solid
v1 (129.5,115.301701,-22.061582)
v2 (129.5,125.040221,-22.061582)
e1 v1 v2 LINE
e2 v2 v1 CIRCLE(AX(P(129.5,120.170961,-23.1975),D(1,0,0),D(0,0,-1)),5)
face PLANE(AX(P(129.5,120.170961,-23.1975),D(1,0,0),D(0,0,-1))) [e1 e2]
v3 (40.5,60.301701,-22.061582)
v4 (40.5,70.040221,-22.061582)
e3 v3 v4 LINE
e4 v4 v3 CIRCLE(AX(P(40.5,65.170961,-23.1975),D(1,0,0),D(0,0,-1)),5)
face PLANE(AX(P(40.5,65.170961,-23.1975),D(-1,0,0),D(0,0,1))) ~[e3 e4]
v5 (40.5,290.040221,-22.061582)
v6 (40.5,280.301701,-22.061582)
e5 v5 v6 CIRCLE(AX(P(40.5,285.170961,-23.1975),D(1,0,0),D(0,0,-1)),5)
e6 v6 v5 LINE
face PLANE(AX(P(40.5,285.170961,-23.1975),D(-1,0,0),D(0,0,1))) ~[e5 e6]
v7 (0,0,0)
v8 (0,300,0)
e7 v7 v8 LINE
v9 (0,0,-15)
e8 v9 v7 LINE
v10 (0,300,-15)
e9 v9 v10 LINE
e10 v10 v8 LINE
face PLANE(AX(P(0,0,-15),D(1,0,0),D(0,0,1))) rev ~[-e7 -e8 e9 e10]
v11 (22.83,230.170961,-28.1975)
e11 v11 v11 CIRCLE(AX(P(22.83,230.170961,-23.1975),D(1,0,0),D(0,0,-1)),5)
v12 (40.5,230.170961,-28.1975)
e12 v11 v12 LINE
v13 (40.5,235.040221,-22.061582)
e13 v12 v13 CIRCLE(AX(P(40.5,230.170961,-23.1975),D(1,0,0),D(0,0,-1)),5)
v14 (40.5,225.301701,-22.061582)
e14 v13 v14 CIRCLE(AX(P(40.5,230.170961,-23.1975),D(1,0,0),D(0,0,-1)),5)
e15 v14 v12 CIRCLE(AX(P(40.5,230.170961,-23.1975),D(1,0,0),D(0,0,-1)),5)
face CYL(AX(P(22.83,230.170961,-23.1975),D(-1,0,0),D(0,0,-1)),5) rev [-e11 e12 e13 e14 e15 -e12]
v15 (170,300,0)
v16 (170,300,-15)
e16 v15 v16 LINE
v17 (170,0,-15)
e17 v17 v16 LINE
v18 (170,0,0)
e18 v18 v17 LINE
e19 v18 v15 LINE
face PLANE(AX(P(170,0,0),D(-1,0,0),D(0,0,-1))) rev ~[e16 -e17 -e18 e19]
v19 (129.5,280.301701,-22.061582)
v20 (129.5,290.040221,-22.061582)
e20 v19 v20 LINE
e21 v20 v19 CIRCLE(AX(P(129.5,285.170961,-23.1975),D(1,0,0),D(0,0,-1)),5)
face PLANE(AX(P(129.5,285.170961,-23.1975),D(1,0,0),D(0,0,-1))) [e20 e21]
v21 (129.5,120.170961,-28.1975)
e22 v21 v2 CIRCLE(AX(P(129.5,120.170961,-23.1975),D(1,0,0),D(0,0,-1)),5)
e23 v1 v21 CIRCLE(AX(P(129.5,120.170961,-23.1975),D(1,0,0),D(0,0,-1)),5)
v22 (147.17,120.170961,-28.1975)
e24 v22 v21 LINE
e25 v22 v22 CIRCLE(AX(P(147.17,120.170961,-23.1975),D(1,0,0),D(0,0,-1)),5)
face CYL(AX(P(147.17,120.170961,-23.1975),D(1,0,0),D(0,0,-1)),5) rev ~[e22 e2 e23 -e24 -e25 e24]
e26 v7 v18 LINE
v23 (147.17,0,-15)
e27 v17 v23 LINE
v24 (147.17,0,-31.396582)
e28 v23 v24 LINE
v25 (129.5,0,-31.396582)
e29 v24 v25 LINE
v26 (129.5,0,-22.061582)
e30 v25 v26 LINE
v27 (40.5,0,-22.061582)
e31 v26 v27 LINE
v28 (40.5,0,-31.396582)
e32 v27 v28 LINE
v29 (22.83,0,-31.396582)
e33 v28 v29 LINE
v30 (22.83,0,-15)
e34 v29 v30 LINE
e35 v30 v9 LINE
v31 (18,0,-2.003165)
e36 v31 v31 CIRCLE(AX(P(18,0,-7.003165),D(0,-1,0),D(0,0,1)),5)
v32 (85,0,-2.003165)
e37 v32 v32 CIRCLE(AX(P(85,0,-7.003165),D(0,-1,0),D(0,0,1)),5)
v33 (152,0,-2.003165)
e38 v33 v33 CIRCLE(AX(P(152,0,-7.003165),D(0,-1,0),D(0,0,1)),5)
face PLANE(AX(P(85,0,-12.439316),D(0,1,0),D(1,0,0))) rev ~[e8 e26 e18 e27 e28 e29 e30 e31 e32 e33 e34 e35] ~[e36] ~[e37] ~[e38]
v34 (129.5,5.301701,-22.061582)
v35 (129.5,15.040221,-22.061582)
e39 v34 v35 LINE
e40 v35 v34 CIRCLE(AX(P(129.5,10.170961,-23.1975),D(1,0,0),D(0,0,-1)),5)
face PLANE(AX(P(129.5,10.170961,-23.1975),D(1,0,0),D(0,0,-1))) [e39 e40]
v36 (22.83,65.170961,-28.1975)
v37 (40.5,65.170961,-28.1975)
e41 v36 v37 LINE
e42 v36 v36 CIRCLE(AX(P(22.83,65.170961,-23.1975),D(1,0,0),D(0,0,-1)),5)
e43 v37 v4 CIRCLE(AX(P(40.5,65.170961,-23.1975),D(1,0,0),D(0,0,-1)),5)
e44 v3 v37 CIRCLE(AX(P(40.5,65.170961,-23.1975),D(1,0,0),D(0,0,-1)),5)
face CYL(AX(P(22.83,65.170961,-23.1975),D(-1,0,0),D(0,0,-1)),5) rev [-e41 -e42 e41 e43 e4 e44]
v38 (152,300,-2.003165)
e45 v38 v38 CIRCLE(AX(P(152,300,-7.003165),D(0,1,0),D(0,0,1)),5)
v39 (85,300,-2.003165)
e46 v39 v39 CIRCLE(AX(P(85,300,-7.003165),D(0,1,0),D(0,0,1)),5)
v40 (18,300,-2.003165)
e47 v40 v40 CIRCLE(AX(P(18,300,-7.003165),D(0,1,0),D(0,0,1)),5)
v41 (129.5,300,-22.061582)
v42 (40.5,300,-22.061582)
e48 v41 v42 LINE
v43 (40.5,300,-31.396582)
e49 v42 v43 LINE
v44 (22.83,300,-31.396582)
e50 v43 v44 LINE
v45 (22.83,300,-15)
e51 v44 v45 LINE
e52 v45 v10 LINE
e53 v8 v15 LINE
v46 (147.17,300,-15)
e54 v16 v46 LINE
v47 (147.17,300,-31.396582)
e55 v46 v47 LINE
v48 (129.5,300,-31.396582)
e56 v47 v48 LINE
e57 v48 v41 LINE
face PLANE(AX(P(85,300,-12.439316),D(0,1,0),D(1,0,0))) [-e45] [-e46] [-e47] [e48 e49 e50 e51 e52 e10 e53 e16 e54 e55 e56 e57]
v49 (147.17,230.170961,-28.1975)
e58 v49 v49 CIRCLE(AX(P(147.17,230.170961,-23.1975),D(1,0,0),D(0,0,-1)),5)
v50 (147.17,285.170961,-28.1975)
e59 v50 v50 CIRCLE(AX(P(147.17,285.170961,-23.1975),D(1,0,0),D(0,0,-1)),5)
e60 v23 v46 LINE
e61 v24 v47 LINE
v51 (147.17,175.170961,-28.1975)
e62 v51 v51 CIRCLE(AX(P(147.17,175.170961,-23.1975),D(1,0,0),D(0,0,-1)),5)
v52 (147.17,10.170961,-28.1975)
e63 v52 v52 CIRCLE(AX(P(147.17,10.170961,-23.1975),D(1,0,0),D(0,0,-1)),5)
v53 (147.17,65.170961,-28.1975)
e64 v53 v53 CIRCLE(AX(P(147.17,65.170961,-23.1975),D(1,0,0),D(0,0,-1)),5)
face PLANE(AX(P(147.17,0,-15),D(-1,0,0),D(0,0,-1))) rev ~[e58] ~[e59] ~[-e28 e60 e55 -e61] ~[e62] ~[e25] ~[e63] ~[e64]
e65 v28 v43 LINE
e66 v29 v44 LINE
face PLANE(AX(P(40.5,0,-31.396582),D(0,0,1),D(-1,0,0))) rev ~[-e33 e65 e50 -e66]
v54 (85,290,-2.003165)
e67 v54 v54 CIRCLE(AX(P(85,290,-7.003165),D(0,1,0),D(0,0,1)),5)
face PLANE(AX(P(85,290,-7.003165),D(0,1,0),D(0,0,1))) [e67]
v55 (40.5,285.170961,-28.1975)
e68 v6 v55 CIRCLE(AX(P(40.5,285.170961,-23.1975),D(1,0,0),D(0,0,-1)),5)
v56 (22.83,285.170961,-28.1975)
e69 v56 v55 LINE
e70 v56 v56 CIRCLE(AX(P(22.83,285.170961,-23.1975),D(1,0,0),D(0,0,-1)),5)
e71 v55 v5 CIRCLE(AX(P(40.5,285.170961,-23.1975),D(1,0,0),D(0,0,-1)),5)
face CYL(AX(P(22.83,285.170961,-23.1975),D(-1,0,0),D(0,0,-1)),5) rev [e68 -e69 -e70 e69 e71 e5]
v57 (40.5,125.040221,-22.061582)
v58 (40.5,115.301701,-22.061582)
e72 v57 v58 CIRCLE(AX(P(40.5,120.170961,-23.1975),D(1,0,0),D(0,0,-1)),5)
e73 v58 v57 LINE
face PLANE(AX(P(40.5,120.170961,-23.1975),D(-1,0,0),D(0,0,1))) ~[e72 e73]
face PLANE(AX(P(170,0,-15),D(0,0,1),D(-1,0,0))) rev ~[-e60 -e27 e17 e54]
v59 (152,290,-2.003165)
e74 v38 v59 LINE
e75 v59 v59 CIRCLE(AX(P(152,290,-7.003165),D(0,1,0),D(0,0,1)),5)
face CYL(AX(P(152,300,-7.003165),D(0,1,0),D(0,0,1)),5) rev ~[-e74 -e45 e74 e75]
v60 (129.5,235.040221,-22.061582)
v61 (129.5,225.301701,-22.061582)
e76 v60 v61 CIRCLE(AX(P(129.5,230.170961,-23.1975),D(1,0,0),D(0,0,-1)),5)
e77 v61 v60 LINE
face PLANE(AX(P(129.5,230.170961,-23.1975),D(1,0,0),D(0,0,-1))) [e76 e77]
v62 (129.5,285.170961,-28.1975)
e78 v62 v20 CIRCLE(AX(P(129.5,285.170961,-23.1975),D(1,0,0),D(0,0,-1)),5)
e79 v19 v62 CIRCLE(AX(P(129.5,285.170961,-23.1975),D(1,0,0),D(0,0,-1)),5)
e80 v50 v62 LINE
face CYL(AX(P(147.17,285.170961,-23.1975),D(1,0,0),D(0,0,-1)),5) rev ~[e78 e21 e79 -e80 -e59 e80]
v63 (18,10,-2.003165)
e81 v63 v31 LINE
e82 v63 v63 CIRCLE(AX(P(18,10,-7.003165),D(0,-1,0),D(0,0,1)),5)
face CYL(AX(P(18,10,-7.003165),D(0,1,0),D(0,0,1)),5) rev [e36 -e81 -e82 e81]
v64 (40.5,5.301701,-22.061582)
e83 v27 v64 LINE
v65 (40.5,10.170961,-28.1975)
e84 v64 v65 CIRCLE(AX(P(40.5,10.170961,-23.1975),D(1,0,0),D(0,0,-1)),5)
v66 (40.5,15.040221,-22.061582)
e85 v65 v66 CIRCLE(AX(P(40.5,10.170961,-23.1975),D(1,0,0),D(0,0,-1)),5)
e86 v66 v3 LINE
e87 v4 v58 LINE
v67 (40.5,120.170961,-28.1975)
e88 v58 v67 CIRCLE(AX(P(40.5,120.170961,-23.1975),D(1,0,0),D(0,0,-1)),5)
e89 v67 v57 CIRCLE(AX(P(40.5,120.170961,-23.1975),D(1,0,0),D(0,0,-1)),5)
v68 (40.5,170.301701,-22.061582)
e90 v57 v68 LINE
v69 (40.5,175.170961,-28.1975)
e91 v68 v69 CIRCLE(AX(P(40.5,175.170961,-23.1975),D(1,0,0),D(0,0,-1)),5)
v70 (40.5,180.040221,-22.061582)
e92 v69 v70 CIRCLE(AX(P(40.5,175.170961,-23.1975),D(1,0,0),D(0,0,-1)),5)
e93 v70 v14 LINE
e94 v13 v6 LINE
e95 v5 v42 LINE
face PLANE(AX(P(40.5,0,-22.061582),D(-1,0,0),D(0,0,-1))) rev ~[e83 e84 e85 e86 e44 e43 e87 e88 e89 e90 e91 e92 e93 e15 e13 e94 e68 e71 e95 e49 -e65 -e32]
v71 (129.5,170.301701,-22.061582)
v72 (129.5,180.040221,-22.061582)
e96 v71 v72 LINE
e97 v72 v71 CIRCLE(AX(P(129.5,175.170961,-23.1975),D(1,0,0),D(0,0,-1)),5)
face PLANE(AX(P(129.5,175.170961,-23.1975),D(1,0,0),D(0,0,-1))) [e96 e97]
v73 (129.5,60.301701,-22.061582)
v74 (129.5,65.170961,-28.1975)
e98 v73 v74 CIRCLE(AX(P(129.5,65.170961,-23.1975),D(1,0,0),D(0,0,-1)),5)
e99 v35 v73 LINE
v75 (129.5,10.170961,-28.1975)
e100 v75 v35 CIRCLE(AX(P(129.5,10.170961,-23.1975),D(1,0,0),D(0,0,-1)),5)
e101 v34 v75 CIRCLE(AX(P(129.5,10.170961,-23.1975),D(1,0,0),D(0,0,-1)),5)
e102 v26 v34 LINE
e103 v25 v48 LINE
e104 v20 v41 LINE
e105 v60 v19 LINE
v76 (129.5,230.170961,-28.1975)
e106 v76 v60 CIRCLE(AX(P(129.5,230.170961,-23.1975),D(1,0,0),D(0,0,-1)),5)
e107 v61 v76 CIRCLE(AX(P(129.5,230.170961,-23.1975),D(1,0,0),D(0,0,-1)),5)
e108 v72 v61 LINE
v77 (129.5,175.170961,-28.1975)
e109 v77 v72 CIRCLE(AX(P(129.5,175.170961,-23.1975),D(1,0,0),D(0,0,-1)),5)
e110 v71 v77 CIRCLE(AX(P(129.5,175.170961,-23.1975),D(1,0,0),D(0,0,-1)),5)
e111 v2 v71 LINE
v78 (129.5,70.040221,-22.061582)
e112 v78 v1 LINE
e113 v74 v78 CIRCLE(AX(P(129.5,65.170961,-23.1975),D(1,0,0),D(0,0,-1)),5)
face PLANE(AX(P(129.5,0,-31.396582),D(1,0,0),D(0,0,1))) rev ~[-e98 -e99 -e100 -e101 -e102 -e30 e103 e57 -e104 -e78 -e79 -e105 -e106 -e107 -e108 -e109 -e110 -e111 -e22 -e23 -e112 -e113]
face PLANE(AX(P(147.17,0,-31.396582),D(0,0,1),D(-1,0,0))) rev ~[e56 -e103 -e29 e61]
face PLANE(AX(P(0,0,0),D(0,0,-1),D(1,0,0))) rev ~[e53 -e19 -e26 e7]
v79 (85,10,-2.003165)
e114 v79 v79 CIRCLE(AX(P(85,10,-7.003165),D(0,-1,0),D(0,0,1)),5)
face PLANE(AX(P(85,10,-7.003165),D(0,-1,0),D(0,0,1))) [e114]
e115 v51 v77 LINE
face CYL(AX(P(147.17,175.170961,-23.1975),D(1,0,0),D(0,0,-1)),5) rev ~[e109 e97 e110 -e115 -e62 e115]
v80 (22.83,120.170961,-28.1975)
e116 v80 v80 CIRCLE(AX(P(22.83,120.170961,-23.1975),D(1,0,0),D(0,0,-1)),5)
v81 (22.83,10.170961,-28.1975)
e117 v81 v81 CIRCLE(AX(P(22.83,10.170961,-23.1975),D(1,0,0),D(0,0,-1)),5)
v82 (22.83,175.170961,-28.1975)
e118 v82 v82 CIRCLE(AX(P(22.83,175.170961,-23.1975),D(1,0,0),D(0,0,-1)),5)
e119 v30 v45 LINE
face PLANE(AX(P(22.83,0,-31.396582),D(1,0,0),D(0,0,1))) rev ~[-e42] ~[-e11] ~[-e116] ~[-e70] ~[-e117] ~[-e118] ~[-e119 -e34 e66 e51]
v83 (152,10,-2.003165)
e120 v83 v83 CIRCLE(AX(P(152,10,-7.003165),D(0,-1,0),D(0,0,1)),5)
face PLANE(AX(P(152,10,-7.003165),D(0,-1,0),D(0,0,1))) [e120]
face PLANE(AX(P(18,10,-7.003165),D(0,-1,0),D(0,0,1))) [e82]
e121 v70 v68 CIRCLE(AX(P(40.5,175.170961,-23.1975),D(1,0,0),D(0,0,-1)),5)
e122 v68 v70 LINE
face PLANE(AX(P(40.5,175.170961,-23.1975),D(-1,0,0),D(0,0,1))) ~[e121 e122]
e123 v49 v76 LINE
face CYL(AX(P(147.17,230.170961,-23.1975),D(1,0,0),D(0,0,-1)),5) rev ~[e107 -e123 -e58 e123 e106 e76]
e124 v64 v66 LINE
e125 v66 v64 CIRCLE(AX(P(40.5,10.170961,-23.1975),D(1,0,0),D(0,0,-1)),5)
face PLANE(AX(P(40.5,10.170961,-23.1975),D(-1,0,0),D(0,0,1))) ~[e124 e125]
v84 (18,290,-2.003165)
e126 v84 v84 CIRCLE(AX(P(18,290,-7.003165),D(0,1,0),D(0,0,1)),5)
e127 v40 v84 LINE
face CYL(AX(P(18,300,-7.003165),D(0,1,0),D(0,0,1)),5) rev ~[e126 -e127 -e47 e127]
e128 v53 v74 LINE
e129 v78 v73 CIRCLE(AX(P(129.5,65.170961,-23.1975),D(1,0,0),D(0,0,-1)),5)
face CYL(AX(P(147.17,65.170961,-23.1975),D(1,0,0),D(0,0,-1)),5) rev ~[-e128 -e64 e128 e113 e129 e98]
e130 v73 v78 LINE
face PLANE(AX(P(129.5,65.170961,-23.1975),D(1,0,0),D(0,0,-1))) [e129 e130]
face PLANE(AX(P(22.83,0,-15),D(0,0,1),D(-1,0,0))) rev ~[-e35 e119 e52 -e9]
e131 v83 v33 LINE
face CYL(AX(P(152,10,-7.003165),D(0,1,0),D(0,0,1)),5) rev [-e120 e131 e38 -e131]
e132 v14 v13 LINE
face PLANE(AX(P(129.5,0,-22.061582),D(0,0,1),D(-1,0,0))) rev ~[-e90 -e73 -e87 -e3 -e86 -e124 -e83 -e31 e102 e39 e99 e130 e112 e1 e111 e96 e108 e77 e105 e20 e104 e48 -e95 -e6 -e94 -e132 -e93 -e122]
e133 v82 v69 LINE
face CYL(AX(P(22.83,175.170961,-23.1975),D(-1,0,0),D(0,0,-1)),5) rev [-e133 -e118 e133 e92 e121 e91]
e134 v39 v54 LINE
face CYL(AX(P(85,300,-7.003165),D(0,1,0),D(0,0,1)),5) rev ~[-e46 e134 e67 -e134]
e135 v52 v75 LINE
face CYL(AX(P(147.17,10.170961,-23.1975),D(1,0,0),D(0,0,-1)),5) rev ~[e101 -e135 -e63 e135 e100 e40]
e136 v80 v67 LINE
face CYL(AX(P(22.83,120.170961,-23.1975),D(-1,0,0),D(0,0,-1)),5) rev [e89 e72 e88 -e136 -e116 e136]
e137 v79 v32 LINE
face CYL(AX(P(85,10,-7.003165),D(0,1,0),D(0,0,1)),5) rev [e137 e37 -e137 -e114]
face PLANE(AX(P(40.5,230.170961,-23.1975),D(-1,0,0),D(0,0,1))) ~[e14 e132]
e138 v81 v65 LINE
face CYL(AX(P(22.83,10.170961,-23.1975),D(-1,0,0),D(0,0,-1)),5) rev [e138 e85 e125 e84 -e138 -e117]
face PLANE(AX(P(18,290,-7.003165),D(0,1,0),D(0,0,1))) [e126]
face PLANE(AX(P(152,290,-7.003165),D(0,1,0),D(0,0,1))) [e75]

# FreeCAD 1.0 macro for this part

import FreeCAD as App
import Part
import Sketcher

doc = App.newDocument("Part")
body = doc.addObject("PartDesign::Body", "Body")

# Sketch on XZ plane
sketch1 = body.newObject("Sketcher::SketchObject", "Sketch")
sketch1.AttachmentSupport = (doc.getObject("XZ_Plane"), [""])
sketch1.MapMode = "FlatFace"
sketch1.addGeometry([
    Part.LineSegment(App.Vector(0, 0, 0), App.Vector(170, 0, 0)),  # 0
    Part.LineSegment(App.Vector(170, 0, 0), App.Vector(170, -15, 0)),  # 1
    Part.LineSegment(App.Vector(170, -15, 0), App.Vector(147, -15, 0)),  # 2
    Part.LineSegment(App.Vector(147, -15, 0), App.Vector(147, -31, 0)),  # 3
    Part.LineSegment(App.Vector(147, -31, 0), App.Vector(130, -31, 0)),  # 4
    Part.LineSegment(App.Vector(130, -31, 0), App.Vector(130, -22, 0)),  # 5
    Part.LineSegment(App.Vector(130, -22, 0), App.Vector(40, -22, 0)),  # 6
    Part.LineSegment(App.Vector(40, -22, 0), App.Vector(40, -31, 0)),  # 7
    Part.LineSegment(App.Vector(40, -31, 0), App.Vector(23, -31, 0)),  # 8
    Part.LineSegment(App.Vector(23, -31, 0), App.Vector(23, -15, 0)),  # 9
    Part.LineSegment(App.Vector(23, -15, 0), App.Vector(0, -15, 0)),  # 10
    Part.LineSegment(App.Vector(0, -15, 0), App.Vector(0, 0, 0)),  # 11
], False)
sketch1.addConstraint([
    Sketcher.Constraint("Coincident", 0, 2, 1, 1),
    Sketcher.Constraint("Coincident", 1, 2, 2, 1),
    Sketcher.Constraint("Coincident", 2, 2, 3, 1),
    Sketcher.Constraint("Coincident", 3, 2, 4, 1),
    Sketcher.Constraint("Coincident", 4, 2, 5, 1),
    Sketcher.Constraint("Coincident", 5, 2, 6, 1),
    Sketcher.Constraint("Coincident", 6, 2, 7, 1),
    Sketcher.Constraint("Coincident", 7, 2, 8, 1),
    Sketcher.Constraint("Coincident", 8, 2, 9, 1),
    Sketcher.Constraint("Coincident", 9, 2, 10, 1),
    Sketcher.Constraint("Coincident", 10, 2, 11, 1),
    Sketcher.Constraint("Coincident", 11, 2, 0, 1),
    Sketcher.Constraint("Horizontal", 0),
    Sketcher.Constraint("Vertical", 1),
    Sketcher.Constraint("Horizontal", 2),
    Sketcher.Constraint("Vertical", 3),
    Sketcher.Constraint("Horizontal", 4),
    Sketcher.Constraint("Vertical", 5),
    Sketcher.Constraint("Horizontal", 6),
    Sketcher.Constraint("Vertical", 7),
    Sketcher.Constraint("Horizontal", 8),
    Sketcher.Constraint("Vertical", 9),
    Sketcher.Constraint("Horizontal", 10),
    Sketcher.Constraint("Vertical", 11),
    Sketcher.Constraint("Coincident", 11, 2, -1, 1),
    Sketcher.Constraint("Horizontal", 4, 2, 7, 2),
    Sketcher.Constraint("Horizontal", 2, 2, 9, 2),
    Sketcher.Constraint("Equal", 4, 8),
    Sketcher.Constraint("Equal", 2, 10),
    Sketcher.Constraint("DistanceX", 0, 1, 0, 2, 170.0),
    Sketcher.Constraint("DistanceX", 6, 2, 6, 1, 89.0),
    Sketcher.Constraint("DistanceY", 1, 2, 1, 1, 15.0),
    Sketcher.Constraint("DistanceX", 2, 2, 2, 1, 22.83),
    Sketcher.Constraint("DistanceY", 5, 1, 5, 2, 9.335),
    Sketcher.Constraint("DistanceY", 3, 2, 3, 1, 16.396582),
])
pad1 = body.newObject("PartDesign::Pad", "Pad")
pad1.Profile = sketch1
pad1.Length = 300
pad1.Reversed = True

# Sketch on YZ plane
sketch2 = body.newObject("Sketcher::SketchObject", "Sketch001")
sketch2.AttachmentSupport = (doc.getObject("YZ_Plane"), [""])
sketch2.MapMode = "FlatFace"
sketch2.AttachmentOffset = App.Placement(App.Vector(0, 0, 147.17), App.Rotation())
sketch2.addGeometry([
    Part.Circle(App.Vector(285, -23, 0), App.Vector(0, 0, 1), 5),  # 0
    Part.Circle(App.Vector(230, -23, 0), App.Vector(0, 0, 1), 5),  # 1
    Part.Circle(App.Vector(175, -23, 0), App.Vector(0, 0, 1), 5),  # 2
    Part.Circle(App.Vector(120, -23, 0), App.Vector(0, 0, 1), 5),  # 3
    Part.Circle(App.Vector(65, -23, 0), App.Vector(0, 0, 1), 5),  # 4
    Part.Circle(App.Vector(10, -23, 0), App.Vector(0, 0, 1), 5),  # 5
], False)
sketch2.addConstraint([
    Sketcher.Constraint("Equal", 0, 1),
    Sketcher.Constraint("Equal", 1, 2),
    Sketcher.Constraint("Equal", 2, 3),
    Sketcher.Constraint("Equal", 3, 4),
    Sketcher.Constraint("Equal", 4, 5),
    Sketcher.Constraint("Horizontal", 0, 3, 1, 3),
    Sketcher.Constraint("Horizontal", 1, 3, 2, 3),
    Sketcher.Constraint("Horizontal", 2, 3, 3, 3),
    Sketcher.Constraint("Horizontal", 3, 3, 4, 3),
    Sketcher.Constraint("Horizontal", 4, 3, 5, 3),
    Sketcher.Constraint("Diameter", 0, 10.0),
    Sketcher.Constraint("DistanceX", 1, 3, 0, 3, 55.0),
    Sketcher.Constraint("DistanceX", 2, 3, 1, 3, 55.0),
    Sketcher.Constraint("DistanceX", 3, 3, 2, 3, 55.0),
    Sketcher.Constraint("DistanceX", 4, 3, 3, 3, 55.0),
    Sketcher.Constraint("DistanceX", 5, 3, 4, 3, 55.0),
    Sketcher.Constraint("DistanceY", 0, 3, -1, 1, 23.1975),
    Sketcher.Constraint("DistanceX", -1, 1, 0, 3, 285.170961),
])
pocket1 = body.newObject("PartDesign::Pocket", "Pocket")
pocket1.Profile = sketch2
pocket1.Length = 17.67
doc.recompute()

datumplane = body.newObject("PartDesign::Plane", "DatumPlane")
datumplane.AttachmentSupport = (doc.getObject("YZ_Plane"), [""])
datumplane.MapMode = "FlatFace"
datumplane.AttachmentOffset = App.Placement(App.Vector(0, 0, 85), App.Rotation())
mirrored = body.newObject("PartDesign::Mirrored", "Mirrored")
mirrored.Originals = [pocket1]
mirrored.MirrorPlane = (datumplane, [""])
body.Tip = mirrored

# Sketch on XZ plane
sketch3 = body.newObject("Sketcher::SketchObject", "Sketch002")
sketch3.AttachmentSupport = (doc.getObject("XZ_Plane"), [""])
sketch3.MapMode = "FlatFace"
sketch3.AttachmentOffset = App.Placement(App.Vector(0, 0, -300), App.Rotation())
sketch3.addGeometry([
    Part.Circle(App.Vector(152, -7, 0), App.Vector(0, 0, 1), 5),
    Part.Circle(App.Vector(85, -7, 0), App.Vector(0, 0, 1), 5),
    Part.Circle(App.Vector(18, -7, 0), App.Vector(0, 0, 1), 5),
], False)
sketch3.addConstraint([
    Sketcher.Constraint("Equal", 0, 1),
    Sketcher.Constraint("Equal", 1, 2),
    Sketcher.Constraint("Horizontal", 0, 3, 1, 3),
    Sketcher.Constraint("Horizontal", 1, 3, 2, 3),
    Sketcher.Constraint("Diameter", 0, 10.0),
    Sketcher.Constraint("DistanceX", -1, 1, 0, 3, 152.0),
    Sketcher.Constraint("DistanceX", -1, 1, 1, 3, 85.0),
    Sketcher.Constraint("DistanceX", -1, 1, 2, 3, 18.0),
    Sketcher.Constraint("DistanceY", 0, 3, -1, 1, 7.003165),
])
pocket2 = body.newObject("PartDesign::Pocket", "Pocket001")
pocket2.Profile = sketch3
pocket2.Length = 10
pocket2.Reversed = True

# Sketch on XZ plane
sketch4 = body.newObject("Sketcher::SketchObject", "Sketch003")
sketch4.AttachmentSupport = (doc.getObject("XZ_Plane"), [""])
sketch4.MapMode = "FlatFace"
sketch4.AttachmentOffset = App.Placement(App.Vector(0, 0, -10), App.Rotation())
sketch4.addGeometry([
    Part.Circle(App.Vector(18, -7, 0), App.Vector(0, 0, 1), 5),
    Part.Circle(App.Vector(85, -7, 0), App.Vector(0, 0, 1), 5),
    Part.Circle(App.Vector(152, -7, 0), App.Vector(0, 0, 1), 5),
], False)
sketch4.addConstraint([
    Sketcher.Constraint("Equal", 0, 1),
    Sketcher.Constraint("Equal", 1, 2),
    Sketcher.Constraint("Horizontal", 0, 3, 1, 3),
    Sketcher.Constraint("Horizontal", 1, 3, 2, 3),
    Sketcher.Constraint("Diameter", 0, 10.0),
    Sketcher.Constraint("DistanceX", -1, 1, 0, 3, 18.0),
    Sketcher.Constraint("DistanceX", -1, 1, 1, 3, 85.0),
    Sketcher.Constraint("DistanceX", -1, 1, 2, 3, 152.0),
    Sketcher.Constraint("DistanceY", 0, 3, -1, 1, 7.003165),
])
pocket3 = body.newObject("PartDesign::Pocket", "Pocket002")
pocket3.Profile = sketch4
pocket3.Length = 10
pocket3.Reversed = True

doc.recompute()
